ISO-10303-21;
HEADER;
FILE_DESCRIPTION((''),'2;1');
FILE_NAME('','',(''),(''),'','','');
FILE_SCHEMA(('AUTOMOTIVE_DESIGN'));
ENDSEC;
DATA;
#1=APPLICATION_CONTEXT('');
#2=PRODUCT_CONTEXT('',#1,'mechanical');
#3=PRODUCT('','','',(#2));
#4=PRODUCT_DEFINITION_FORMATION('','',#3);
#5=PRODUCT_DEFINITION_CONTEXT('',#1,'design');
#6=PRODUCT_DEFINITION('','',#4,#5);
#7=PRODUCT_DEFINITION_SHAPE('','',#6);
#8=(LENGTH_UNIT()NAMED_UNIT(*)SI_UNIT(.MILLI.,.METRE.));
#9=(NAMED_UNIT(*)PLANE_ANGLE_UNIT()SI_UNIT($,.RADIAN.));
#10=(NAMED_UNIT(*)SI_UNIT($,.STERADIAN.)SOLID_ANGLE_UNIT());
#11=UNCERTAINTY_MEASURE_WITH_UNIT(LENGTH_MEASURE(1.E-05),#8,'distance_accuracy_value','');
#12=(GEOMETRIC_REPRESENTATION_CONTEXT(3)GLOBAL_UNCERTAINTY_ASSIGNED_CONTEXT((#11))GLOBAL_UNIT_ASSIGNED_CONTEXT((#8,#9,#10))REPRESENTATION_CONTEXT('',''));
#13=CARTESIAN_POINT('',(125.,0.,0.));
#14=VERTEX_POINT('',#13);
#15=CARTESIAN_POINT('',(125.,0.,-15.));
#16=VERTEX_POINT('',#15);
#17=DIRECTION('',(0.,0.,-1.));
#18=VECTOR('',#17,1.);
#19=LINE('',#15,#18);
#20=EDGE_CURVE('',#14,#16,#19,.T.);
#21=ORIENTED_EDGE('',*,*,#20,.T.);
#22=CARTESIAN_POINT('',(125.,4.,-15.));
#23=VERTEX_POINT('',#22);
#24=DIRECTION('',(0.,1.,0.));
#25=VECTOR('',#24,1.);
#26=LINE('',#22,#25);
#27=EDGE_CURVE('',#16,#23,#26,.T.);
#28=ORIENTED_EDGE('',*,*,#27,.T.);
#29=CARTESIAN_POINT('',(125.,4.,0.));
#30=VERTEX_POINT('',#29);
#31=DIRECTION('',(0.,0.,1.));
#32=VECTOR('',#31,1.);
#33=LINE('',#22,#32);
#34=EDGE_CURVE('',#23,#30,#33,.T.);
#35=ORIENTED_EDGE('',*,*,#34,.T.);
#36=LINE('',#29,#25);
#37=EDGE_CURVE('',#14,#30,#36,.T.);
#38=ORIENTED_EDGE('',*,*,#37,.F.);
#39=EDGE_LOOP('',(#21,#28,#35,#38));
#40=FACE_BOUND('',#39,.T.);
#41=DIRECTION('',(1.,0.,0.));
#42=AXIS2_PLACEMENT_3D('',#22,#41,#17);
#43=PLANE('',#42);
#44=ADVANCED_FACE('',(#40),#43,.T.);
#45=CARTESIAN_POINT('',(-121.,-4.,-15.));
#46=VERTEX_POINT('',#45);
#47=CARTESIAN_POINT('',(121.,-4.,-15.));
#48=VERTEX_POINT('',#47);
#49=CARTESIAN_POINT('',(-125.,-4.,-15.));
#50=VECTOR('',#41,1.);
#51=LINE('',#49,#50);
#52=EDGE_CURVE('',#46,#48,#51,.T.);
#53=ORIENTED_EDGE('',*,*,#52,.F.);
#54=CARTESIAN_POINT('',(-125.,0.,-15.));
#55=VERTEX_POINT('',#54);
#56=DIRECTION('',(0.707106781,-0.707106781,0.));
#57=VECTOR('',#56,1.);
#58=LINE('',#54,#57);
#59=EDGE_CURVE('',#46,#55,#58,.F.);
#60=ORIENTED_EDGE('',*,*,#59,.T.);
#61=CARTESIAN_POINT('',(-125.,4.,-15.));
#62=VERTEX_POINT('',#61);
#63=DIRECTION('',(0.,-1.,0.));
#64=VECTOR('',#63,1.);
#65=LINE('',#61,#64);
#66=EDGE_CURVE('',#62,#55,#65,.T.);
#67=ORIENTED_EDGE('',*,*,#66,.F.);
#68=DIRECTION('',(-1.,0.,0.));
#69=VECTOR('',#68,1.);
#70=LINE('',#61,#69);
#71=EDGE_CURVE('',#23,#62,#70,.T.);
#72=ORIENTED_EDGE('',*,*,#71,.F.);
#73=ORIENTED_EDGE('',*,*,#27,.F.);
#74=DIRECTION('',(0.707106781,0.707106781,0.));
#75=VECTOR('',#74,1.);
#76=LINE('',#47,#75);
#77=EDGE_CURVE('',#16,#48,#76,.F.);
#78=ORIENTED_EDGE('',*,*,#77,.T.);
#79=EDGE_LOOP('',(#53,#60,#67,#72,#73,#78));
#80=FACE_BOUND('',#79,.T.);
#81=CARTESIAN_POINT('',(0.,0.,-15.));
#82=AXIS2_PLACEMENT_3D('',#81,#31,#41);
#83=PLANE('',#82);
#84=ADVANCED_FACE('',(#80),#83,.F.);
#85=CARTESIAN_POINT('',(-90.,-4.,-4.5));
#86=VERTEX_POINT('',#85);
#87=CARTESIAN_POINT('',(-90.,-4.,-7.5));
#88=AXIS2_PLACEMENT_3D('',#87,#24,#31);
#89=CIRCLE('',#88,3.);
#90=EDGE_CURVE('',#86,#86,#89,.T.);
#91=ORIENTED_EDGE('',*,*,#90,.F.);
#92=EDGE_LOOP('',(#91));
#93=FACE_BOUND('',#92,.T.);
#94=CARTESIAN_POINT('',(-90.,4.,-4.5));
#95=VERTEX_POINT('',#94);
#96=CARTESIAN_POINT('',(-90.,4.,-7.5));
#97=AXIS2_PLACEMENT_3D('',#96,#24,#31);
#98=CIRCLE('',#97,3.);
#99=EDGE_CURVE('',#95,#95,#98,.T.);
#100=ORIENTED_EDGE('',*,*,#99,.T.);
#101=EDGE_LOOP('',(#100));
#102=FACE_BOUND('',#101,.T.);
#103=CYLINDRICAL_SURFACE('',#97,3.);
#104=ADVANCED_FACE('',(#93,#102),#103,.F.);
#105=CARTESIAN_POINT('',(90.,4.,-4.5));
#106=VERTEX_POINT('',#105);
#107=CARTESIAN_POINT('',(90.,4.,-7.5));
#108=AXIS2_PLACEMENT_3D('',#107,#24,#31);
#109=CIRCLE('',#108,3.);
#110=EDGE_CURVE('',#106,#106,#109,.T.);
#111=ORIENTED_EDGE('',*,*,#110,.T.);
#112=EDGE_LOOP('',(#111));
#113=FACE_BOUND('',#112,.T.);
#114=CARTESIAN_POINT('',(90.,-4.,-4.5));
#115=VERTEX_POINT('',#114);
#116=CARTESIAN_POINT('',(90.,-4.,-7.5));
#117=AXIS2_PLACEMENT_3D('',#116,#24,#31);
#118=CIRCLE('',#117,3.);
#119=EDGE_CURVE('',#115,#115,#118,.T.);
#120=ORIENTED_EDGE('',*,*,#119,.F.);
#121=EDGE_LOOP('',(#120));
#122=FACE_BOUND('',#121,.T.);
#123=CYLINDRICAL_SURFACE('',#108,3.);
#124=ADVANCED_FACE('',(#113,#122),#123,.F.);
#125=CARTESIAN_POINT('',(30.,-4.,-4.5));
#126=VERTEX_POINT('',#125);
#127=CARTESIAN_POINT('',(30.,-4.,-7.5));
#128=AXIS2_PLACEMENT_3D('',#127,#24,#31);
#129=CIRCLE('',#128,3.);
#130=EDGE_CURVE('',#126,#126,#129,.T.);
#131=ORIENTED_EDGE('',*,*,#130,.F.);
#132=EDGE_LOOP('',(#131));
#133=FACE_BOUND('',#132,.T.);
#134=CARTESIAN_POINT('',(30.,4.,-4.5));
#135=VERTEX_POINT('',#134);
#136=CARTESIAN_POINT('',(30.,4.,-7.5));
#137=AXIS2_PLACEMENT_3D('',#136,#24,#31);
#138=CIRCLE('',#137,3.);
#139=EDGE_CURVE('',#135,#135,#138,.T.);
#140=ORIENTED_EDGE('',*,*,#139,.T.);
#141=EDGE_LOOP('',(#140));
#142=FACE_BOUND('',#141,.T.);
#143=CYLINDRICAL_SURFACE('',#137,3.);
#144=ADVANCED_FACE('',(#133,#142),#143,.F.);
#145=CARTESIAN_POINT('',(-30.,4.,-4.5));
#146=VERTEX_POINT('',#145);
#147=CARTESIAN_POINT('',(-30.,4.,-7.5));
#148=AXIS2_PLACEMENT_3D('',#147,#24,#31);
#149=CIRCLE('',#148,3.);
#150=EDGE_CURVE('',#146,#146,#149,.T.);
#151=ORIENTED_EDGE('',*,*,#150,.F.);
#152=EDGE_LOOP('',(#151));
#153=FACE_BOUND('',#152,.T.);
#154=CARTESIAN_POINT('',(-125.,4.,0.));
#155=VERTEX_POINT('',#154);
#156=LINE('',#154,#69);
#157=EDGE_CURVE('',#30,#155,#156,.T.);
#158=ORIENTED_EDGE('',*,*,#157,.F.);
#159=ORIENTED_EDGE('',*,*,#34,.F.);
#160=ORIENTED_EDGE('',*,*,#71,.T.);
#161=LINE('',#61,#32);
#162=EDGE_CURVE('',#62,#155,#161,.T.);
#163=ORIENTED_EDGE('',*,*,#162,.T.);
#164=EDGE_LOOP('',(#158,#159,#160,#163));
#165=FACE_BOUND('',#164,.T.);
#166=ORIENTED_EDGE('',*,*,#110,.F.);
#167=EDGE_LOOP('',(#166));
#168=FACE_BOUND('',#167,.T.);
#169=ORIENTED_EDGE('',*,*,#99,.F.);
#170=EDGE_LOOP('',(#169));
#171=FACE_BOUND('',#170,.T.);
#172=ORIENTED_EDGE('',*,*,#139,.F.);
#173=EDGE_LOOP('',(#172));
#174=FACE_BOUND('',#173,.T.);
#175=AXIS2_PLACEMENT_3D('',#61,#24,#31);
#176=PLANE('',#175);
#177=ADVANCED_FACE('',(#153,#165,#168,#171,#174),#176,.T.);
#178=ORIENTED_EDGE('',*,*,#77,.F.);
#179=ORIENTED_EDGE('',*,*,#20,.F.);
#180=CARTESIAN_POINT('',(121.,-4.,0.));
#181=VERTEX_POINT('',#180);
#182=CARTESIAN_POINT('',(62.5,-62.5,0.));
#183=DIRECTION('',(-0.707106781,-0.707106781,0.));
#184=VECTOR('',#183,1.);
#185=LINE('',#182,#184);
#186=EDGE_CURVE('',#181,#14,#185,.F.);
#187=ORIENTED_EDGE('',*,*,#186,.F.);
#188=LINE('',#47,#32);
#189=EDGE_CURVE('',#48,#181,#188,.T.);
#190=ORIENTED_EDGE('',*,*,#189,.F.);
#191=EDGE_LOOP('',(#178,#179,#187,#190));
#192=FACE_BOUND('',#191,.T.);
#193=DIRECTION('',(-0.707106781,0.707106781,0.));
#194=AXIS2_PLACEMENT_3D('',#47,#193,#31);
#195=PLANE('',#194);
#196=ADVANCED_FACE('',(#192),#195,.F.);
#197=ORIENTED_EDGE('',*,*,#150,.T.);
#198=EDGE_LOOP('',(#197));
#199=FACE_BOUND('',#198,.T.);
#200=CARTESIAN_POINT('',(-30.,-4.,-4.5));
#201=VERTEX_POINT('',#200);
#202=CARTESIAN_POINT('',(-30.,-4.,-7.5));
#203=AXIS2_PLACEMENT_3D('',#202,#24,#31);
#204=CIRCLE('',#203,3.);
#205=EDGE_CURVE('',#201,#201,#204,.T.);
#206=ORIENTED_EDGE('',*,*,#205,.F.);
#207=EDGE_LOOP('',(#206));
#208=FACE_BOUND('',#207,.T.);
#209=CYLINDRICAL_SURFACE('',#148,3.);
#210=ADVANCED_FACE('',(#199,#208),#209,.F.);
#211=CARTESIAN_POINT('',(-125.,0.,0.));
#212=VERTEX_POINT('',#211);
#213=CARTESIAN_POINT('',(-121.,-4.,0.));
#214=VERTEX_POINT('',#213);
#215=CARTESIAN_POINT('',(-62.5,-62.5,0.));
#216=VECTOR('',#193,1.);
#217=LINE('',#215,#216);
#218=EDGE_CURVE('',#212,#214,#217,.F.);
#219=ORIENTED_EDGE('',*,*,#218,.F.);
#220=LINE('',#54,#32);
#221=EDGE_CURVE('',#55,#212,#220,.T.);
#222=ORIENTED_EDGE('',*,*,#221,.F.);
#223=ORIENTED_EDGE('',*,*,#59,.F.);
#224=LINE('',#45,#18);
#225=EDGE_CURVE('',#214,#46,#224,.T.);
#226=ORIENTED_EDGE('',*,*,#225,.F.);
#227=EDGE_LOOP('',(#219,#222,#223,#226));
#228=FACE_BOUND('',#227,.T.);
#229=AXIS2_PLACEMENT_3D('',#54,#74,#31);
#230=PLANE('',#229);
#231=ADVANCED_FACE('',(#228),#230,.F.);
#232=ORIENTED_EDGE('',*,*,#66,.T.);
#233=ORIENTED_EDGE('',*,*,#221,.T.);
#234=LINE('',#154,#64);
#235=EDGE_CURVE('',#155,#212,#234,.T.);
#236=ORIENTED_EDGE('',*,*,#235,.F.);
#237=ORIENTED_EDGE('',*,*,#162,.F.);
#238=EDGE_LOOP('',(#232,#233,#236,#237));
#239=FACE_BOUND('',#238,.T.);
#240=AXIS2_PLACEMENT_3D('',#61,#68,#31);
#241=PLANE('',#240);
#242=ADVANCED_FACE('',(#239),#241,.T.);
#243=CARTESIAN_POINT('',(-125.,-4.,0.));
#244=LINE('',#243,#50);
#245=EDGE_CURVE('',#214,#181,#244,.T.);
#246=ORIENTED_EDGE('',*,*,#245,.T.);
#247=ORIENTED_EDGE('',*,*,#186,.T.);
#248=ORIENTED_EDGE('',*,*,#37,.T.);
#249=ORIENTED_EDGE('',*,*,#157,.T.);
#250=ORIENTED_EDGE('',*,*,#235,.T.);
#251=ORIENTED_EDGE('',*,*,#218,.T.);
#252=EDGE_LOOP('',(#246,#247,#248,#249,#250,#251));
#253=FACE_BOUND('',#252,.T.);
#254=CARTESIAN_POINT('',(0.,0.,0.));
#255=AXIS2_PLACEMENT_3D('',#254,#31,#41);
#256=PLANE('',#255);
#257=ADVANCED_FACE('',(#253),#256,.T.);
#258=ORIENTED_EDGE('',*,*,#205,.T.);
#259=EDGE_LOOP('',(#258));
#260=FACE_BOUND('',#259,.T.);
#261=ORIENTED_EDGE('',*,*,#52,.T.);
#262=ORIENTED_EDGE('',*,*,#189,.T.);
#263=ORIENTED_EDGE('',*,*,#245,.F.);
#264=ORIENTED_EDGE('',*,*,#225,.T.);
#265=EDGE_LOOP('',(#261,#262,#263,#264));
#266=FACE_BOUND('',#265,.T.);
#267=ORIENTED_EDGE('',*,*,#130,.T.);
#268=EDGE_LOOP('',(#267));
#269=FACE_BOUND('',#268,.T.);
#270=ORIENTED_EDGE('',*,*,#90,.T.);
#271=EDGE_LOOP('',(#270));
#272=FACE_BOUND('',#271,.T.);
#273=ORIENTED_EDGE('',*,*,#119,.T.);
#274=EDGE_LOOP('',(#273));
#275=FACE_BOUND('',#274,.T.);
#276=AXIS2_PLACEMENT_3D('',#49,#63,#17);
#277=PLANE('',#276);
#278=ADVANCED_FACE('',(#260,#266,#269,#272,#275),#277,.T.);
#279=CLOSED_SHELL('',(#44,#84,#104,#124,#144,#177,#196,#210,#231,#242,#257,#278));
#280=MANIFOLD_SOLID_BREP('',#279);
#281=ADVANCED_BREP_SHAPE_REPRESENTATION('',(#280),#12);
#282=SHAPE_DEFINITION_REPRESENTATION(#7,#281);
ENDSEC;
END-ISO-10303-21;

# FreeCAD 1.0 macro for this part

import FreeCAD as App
import Part
import Sketcher

V = App.Vector


def edges_at(feature, points):
    """Names of the edges that pass closest to the given points."""
    edges = feature.Shape.Edges
    near = lambda p: min(range(len(edges)), key=lambda i: edges[i].distToShape(Part.Vertex(*p))[0])
    return sorted({f"Edge{near(p) + 1}" for p in points})


def add_polygon(sketch, points):
    """Adds a closed chain of lines whose ends are joined by coincident constraints."""
    first, n = sketch.GeometryCount, len(points)
    for a, b in zip(points, points[1:] + points[:1]):
        sketch.addGeometry(Part.LineSegment(App.Vector(*a, 0), App.Vector(*b, 0)), False)
    for i in range(n):
        sketch.addConstraint(Sketcher.Constraint("Coincident", first + i, 2, first + (i + 1) % n, 1))

doc = App.newDocument("Part")
params = doc.addObject("Spreadsheet::Sheet", "Params")
for row, (alias, value) in enumerate([
    ("sketch1_width", "250 mm"),
    ("sketch1_height", "8 mm"),
    ("pad1_length", "15 mm"),
    ("sketch2_diameter", "6 mm"),
    ("hole_diameter", "6 mm"),
    ("chamfer_size", "4 mm"),
], start=1):
    params.set(f"A{row}", alias)
    params.set(f"B{row}", "=" + value)
    params.setAlias(f"B{row}", alias)

body = doc.addObject("PartDesign::Body", "Body")

sketch1 = doc.addObject("Sketcher::SketchObject", "Sketch")
body.addObject(sketch1)
sketch1.AttachmentSupport = (doc.XY_Plane, [""])
sketch1.MapMode = "FlatFace"
add_polygon(sketch1, [(-125, 4), (-125, -4), (125, -4), (125, 4)])
sketch1.addConstraint(Sketcher.Constraint("Vertical", 0))
sketch1.addConstraint(Sketcher.Constraint("Horizontal", 1))
sketch1.addConstraint(Sketcher.Constraint("Vertical", 2))
sketch1.addConstraint(Sketcher.Constraint("Horizontal", 3))
sketch1.addConstraint(Sketcher.Constraint("Symmetric", 0, 2, 2, 2, -1, 1))
sketch1.addConstraint(Sketcher.Constraint("DistanceX", 1, 1, 1, 2, 250.0))
sketch1.addConstraint(Sketcher.Constraint("DistanceY", 0, 2, 0, 1, 8.0))
sketch1.setExpression("Constraints[9]", "Params.sketch1_width")
sketch1.setExpression("Constraints[10]", "Params.sketch1_height")
pad1 = doc.addObject("PartDesign::Pad", "Pad")
body.addObject(pad1)
pad1.Profile = sketch1
pad1.setExpression("Length", "Params.pad1_length")
pad1.Reversed = True

sketch2 = doc.addObject("Sketcher::SketchObject", "Sketch001")
body.addObject(sketch2)
sketch2.AttachmentSupport = (doc.XZ_Plane, [""])
sketch2.MapMode = "FlatFace"
sketch2.AttachmentOffset = App.Placement(V(0, 0, -4), App.Rotation())
sketch2.addGeometry(Part.Circle(V(-90, -7.5, 0), V(0, 0, 1), 3), False)
sketch2.addGeometry(Part.Circle(V(90, -7.5, 0), V(0, 0, 1), 3), False)
sketch2.addGeometry(Part.Circle(V(-30, -7.5, 0), V(0, 0, 1), 3), False)
sketch2.addGeometry(Part.Circle(V(30, -7.5, 0), V(0, 0, 1), 3), False)
sketch2.addConstraint(Sketcher.Constraint("Equal", 0, 1))
sketch2.addConstraint(Sketcher.Constraint("Equal", 1, 2))
sketch2.addConstraint(Sketcher.Constraint("Equal", 2, 3))
sketch2.addConstraint(Sketcher.Constraint("Symmetric", 0, 3, 1, 3, -2))
sketch2.addConstraint(Sketcher.Constraint("Symmetric", 2, 3, 3, 3, -2))
sketch2.addConstraint(Sketcher.Constraint("Horizontal", 1, 3, 2, 3))
sketch2.addConstraint(Sketcher.Constraint("Diameter", 0, 6.0))
sketch2.addConstraint(Sketcher.Constraint("DistanceX", 0, 3, -1, 1, 90.0))
sketch2.addConstraint(Sketcher.Constraint("DistanceX", 2, 3, -1, 1, 30.0))
sketch2.addConstraint(Sketcher.Constraint("DistanceY", 0, 3, -1, 1, 7.5))
sketch2.setExpression("Constraints[6]", "Params.sketch2_diameter")
doc.recompute()
hole = doc.addObject("PartDesign::Hole", "Hole")
body.addObject(hole)
hole.Profile = sketch2
hole.ThreadType = "None"
hole.setExpression("Diameter", "Params.hole_diameter")
hole.DepthType = "ThroughAll"
hole.Reversed = True
doc.recompute()

chamfer = doc.addObject("PartDesign::Chamfer", "Chamfer")
body.addObject(chamfer)
chamfer.Base = (hole, edges_at(hole, [(125, -4, -7.5), (-125, -4, -7.5)]))
chamfer.setExpression("Size", "Params.chamfer_size")

doc.recompute()
